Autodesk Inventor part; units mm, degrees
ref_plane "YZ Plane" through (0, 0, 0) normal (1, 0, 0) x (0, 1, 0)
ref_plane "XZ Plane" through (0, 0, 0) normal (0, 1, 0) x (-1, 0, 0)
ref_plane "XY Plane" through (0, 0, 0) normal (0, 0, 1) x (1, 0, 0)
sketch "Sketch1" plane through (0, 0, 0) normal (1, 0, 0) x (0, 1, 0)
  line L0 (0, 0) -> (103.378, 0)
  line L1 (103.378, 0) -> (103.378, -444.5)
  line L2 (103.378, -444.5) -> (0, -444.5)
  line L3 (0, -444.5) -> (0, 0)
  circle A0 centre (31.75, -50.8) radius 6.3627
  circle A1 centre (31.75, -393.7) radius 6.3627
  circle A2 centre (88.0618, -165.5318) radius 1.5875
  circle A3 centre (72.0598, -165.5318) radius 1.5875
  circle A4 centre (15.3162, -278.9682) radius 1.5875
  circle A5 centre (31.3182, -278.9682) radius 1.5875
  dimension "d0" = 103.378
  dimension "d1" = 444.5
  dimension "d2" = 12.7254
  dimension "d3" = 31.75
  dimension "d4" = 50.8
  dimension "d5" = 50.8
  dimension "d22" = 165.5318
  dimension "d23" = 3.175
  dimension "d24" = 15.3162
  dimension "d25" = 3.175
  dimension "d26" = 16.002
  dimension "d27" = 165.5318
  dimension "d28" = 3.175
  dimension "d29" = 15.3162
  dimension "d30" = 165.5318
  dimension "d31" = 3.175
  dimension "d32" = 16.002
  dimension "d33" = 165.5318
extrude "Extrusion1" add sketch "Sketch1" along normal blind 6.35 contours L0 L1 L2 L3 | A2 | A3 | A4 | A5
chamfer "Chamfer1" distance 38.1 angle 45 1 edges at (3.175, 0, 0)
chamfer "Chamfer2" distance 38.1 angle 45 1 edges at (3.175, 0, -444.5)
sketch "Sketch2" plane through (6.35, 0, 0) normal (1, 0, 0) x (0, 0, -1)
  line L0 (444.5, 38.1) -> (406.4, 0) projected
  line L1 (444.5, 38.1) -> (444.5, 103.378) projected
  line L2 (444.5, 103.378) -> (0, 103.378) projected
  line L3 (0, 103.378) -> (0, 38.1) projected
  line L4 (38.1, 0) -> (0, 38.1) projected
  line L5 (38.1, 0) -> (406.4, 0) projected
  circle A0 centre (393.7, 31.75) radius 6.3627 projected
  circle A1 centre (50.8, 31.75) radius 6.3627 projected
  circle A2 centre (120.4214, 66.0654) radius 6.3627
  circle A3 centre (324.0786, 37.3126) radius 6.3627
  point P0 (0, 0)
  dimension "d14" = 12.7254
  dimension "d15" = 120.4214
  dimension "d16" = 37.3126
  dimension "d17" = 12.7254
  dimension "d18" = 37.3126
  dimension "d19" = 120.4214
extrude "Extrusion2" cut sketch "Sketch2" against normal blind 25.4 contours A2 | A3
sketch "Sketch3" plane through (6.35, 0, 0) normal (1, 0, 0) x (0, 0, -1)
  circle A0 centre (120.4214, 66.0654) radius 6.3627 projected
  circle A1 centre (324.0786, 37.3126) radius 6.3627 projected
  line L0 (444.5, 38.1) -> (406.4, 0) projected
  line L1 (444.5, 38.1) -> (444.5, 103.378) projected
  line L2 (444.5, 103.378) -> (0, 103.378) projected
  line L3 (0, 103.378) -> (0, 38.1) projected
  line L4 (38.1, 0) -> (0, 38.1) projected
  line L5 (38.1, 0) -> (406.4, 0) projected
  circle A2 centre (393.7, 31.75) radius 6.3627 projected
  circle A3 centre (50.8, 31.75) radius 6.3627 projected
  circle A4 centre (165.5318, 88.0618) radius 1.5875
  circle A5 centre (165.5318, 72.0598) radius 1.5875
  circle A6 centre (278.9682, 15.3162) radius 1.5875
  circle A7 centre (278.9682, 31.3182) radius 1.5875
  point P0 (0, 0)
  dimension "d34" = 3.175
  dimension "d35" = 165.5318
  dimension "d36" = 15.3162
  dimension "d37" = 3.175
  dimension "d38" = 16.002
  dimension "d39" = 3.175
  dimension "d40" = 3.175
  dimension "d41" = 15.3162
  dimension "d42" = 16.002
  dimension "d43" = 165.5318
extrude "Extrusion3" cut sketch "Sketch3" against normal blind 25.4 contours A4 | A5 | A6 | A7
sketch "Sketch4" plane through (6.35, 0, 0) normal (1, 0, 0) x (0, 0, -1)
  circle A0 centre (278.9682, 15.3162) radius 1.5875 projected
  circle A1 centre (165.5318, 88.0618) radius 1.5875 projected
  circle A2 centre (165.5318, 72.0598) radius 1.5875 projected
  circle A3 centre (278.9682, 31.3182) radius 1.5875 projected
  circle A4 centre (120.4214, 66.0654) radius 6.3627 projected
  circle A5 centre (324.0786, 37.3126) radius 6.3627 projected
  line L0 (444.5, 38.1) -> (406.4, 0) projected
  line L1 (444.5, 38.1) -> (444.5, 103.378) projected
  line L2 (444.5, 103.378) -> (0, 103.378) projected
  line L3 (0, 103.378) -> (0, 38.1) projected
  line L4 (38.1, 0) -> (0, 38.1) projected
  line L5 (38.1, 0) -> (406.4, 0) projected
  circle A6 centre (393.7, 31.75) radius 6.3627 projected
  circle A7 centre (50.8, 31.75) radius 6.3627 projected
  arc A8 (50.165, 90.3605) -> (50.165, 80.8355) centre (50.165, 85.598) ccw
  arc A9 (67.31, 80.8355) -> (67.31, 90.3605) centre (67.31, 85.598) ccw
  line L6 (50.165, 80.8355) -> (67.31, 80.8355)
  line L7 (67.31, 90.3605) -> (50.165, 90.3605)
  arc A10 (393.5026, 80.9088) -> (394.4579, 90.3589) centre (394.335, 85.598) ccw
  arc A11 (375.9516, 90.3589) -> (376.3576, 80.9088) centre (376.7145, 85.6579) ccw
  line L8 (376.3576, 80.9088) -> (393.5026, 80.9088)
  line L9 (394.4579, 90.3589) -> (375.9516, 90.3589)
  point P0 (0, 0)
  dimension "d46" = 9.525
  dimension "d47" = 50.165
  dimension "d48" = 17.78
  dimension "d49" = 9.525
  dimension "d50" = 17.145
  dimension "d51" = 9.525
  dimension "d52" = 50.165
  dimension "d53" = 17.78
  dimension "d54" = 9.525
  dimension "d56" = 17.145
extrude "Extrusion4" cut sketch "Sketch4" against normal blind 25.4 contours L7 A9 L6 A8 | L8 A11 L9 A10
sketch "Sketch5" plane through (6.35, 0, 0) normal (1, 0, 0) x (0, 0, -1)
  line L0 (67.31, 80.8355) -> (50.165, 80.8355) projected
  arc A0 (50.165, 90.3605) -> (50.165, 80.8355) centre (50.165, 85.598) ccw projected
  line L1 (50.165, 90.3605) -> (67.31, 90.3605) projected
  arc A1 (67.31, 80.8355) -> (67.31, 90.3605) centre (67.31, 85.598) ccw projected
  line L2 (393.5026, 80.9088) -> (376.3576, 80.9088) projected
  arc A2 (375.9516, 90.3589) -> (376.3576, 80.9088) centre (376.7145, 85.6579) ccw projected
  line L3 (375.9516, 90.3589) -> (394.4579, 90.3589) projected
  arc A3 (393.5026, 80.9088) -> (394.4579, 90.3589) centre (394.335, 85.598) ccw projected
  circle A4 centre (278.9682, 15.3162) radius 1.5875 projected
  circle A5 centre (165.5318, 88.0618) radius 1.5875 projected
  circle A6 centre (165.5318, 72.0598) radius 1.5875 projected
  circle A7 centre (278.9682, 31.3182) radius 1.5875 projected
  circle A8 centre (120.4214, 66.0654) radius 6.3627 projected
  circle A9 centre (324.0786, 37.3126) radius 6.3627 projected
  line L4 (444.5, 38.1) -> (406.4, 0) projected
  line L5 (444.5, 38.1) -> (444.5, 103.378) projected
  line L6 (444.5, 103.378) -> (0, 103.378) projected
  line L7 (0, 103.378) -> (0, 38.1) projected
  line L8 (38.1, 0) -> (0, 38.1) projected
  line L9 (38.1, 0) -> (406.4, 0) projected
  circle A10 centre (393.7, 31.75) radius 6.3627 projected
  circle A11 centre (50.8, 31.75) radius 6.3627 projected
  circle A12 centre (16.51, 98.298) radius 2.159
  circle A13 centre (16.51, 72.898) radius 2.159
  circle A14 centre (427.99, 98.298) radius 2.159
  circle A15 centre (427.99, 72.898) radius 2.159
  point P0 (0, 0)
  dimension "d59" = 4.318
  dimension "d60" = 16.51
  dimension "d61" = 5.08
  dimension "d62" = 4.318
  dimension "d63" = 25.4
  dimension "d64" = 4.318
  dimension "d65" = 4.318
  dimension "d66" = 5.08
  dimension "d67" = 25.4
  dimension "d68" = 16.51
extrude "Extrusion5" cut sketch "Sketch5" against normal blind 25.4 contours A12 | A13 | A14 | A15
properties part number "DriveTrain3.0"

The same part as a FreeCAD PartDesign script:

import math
import FreeCAD as App
import Part
import Sketcher

V = App.Vector
Q = App.Units.Quantity


def edges_at(feature, points):
    """Names of the edges that pass closest to the given points."""
    edges = feature.Shape.Edges
    near = lambda p: min(range(len(edges)), key=lambda i: edges[i].distToShape(Part.Vertex(*p))[0])
    return sorted({f"Edge{near(p) + 1}" for p in points})


def add_polygon(sketch, points):
    """Adds a closed chain of lines whose ends are joined by coincident constraints."""
    first, n = sketch.GeometryCount, len(points)
    for a, b in zip(points, points[1:] + points[:1]):
        sketch.addGeometry(Part.LineSegment(App.Vector(*a, 0), App.Vector(*b, 0)), False)
    for i in range(n):
        sketch.addConstraint(Sketcher.Constraint("Coincident", first + i, 2, first + (i + 1) % n, 1))

doc = App.newDocument("Part")
body = doc.addObject("PartDesign::Body", "Body")

# Sketch on YZ plane
sketch1 = body.newObject("Sketcher::SketchObject", "Sketch")
sketch1.AttachmentSupport = (doc.getObject("YZ_Plane"), [""])
sketch1.MapMode = "FlatFace"
add_polygon(sketch1, [(103.378, 0), (0, 0), (0, -444.5), (103.378, -444.5)])  # lines 0-3
sketch1.addGeometry(Part.Circle(V(31.75, -393.7, 0), V(0, 0, 1), 6.3627), False)  # 4
sketch1.addGeometry(Part.Circle(V(31.75, -50.8, 0), V(0, 0, 1), 6.3627), False)  # 5
sketch1.addConstraint([
    Sketcher.Constraint("Horizontal", 0),
    Sketcher.Constraint("Vertical", 1),
    Sketcher.Constraint("Horizontal", 2),
    Sketcher.Constraint("Vertical", 3),
    Sketcher.Constraint("Coincident", 0, 2, -1, 1),
    Sketcher.Constraint("Equal", 4, 5),
    Sketcher.Constraint("Vertical", 4, 3, 5, 3),
    Sketcher.Constraint("Diameter", 4, Q("0.501 in")),
    Sketcher.Constraint("DistanceY", 1, 2, 1, 1, Q("17.5 in")),
    Sketcher.Constraint("DistanceY", 5, 3, -1, 1, Q("2 in")),
    Sketcher.Constraint("DistanceY", 1, 2, 4, 3, Q("2 in")),
    Sketcher.Constraint("DistanceX", 0, 2, 0, 1, Q("4.07 in")),
    Sketcher.Constraint("DistanceX", -1, 1, 4, 3, Q("1.25 in")),
])
pad1 = body.newObject("PartDesign::Pad", "Pad")
pad1.Profile = sketch1
pad1.Length = Q("0.25 in")
doc.recompute()

chamfer = body.newObject("PartDesign::Chamfer", "Chamfer")
chamfer.Base = (pad1, edges_at(pad1, [(3.175, 0, 0)]))
chamfer.Size = Q("1.5 in")
doc.recompute()

chamfer2 = body.newObject("PartDesign::Chamfer", "Chamfer001")
chamfer2.Base = (chamfer, edges_at(chamfer, [(3.175, 0, -444.5)]))
chamfer2.Size = Q("1.5 in")

# Sketch on YZ plane
sketch2 = body.newObject("Sketcher::SketchObject", "Sketch001")
sketch2.AttachmentSupport = (doc.getObject("YZ_Plane"), [""])
sketch2.MapMode = "FlatFace"
sketch2.AttachmentOffset = App.Placement(V(0, 0, 0.25 * 25.4), App.Rotation())
sketch2.addGeometry([
    Part.Circle(V(66.0654, -120.4214, 0), V(0, 0, 1), 6.3627),
    Part.Circle(V(37.3126, -324.0786, 0), V(0, 0, 1), 6.3627),
], False)
sketch2.addConstraint([
    Sketcher.Constraint("Equal", 0, 1),
    Sketcher.Constraint("Diameter", 0, Q("0.501 in")),
    Sketcher.Constraint("DistanceY", 0, 3, -1, 1, Q("4.741 in")),
    Sketcher.Constraint("DistanceX", -1, 1, 1, 3, Q("1.469 in")),
    Sketcher.Constraint("DistanceX", -1, 1, 0, 3, Q("2.601 in")),
    Sketcher.Constraint("DistanceY", 1, 3, -1, 1, Q("12.759 in")),
])
pocket1 = body.newObject("PartDesign::Pocket", "Pocket")
pocket1.Profile = sketch2
pocket1.Length = Q("1 in")

# Sketch on YZ plane
sketch3 = body.newObject("Sketcher::SketchObject", "Sketch002")
sketch3.AttachmentSupport = (doc.getObject("YZ_Plane"), [""])
sketch3.MapMode = "FlatFace"
sketch3.AttachmentOffset = App.Placement(V(0, 0, 0.25 * 25.4), App.Rotation())
sketch3.addGeometry([
    Part.Circle(V(88.0618, -165.5318, 0), V(0, 0, 1), 1.5875),
    Part.Circle(V(72.0598, -165.5318, 0), V(0, 0, 1), 1.5875),
    Part.Circle(V(15.3162, -278.9682, 0), V(0, 0, 1), 1.5875),
    Part.Circle(V(31.3182, -278.9682, 0), V(0, 0, 1), 1.5875),
], False)
sketch3.addConstraint([
    Sketcher.Constraint("Equal", 0, 1),
    Sketcher.Constraint("Equal", 1, 2),
    Sketcher.Constraint("Equal", 2, 3),
    Sketcher.Constraint("Horizontal", 0, 3, 1, 3),
    Sketcher.Constraint("Horizontal", 2, 3, 3, 3),
    Sketcher.Constraint("Diameter", 0, Q("0.125 in")),
    Sketcher.Constraint("DistanceX", 1, 3, 0, 3, Q("0.63 in")),
    Sketcher.Constraint("DistanceX", 2, 3, 3, 3, Q("0.63 in")),
    Sketcher.Constraint("DistanceY", 0, 3, -1, 1, Q("6.517 in")),
    Sketcher.Constraint("DistanceX", -1, 1, 2, 3, Q("0.603 in")),
    Sketcher.Constraint("DistanceX", -1, 1, 0, 3, Q("3.467 in")),
    Sketcher.Constraint("DistanceY", 2, 3, -1, 1, Q("10.983 in")),
])
pocket2 = body.newObject("PartDesign::Pocket", "Pocket001")
pocket2.Profile = sketch3
pocket2.Length = Q("1 in")

# Sketch on YZ plane
sketch4 = body.newObject("Sketcher::SketchObject", "Sketch003")
sketch4.AttachmentSupport = (doc.getObject("YZ_Plane"), [""])
sketch4.MapMode = "FlatFace"
sketch4.AttachmentOffset = App.Placement(V(0, 0, 0.25 * 25.4), App.Rotation())
sketch4.addGeometry([
    Part.LineSegment(V(90.3605, -67.31, 0), V(90.3605, -50.165, 0)),  # 0
    Part.ArcOfCircle(Part.Circle(V(85.598, -50.165, 0), V(0, 0, 1), 4.7625), math.radians(0), math.radians(180)),  # 1
    Part.LineSegment(V(80.8355, -50.165, 0), V(80.8355, -67.31, 0)),  # 2
    Part.ArcOfCircle(Part.Circle(V(85.598, -67.31, 0), V(0, 0, 1), 4.7625), math.radians(180), math.radians(360)),  # 3
    Part.LineSegment(V(80.9088, -376.3576, 0), V(80.9088, -393.5026, 0)),  # 4
    Part.ArcOfCircle(Part.Circle(V(85.598, -394.335, 0), V(0, 0, 1), 4.762508), math.radians(169.934037), math.radians(358.52127)),  # 5
    Part.LineSegment(V(90.3589, -394.4579, 0), V(90.3589, -375.9516, 0)),  # 6
    Part.ArcOfCircle(Part.Circle(V(85.6579, -376.7145, 0), V(0, 0, 1), 4.762501), math.radians(9.217863), math.radians(175.702239)),  # 7
], False)
sketch4.addConstraint([
    Sketcher.Constraint("Tangent", 0, 2, 1, 1),
    Sketcher.Constraint("Tangent", 1, 2, 2, 1),
    Sketcher.Constraint("Tangent", 2, 2, 3, 1),
    Sketcher.Constraint("Tangent", 3, 2, 0, 1),
    Sketcher.Constraint("Coincident", 4, 2, 5, 1),
    Sketcher.Constraint("Coincident", 5, 2, 6, 1),
    Sketcher.Constraint("Coincident", 6, 2, 7, 1),
    Sketcher.Constraint("Coincident", 7, 2, 4, 1),
    Sketcher.Constraint("Vertical", 0),
    Sketcher.Constraint("Vertical", 2),
    Sketcher.Constraint("Vertical", 4),
    Sketcher.Constraint("Vertical", 6),
    Sketcher.Constraint("Equal", 3, 5),
    Sketcher.Constraint("Equal", 5, 7),
    Sketcher.Constraint("Vertical", 3, 3, 5, 3),
    Sketcher.Constraint("Equal", 2, 4),
    Sketcher.Constraint("Radius", 1, Q("0.1875 in")),
    Sketcher.Constraint("DistanceY", 0, 1, 0, 2, Q("0.675 in")),
    Sketcher.Constraint("DistanceY", 1, 3, -1, 1, Q("1.975 in")),
    Sketcher.Constraint("DistanceX", -1, 1, 1, 3, Q("3.37 in")),
    Sketcher.Constraint("DistanceY", 5, 3, 1, 3, Q("13.55 in")),
    Sketcher.Constraint("DistanceY", 6, 1, 6, 2, Q("0.7286 in")),
    Sketcher.Constraint("DistanceY", 5, 2, 4, 2, Q("0.0376 in")),
    Sketcher.Constraint("DistanceX", -1, 1, 7, 3, 85.658),
])
pocket3 = body.newObject("PartDesign::Pocket", "Pocket002")
pocket3.Profile = sketch4
pocket3.Length = Q("1 in")

# Sketch on YZ plane
sketch5 = body.newObject("Sketcher::SketchObject", "Sketch004")
sketch5.AttachmentSupport = (doc.getObject("YZ_Plane"), [""])
sketch5.MapMode = "FlatFace"
sketch5.AttachmentOffset = App.Placement(V(0, 0, 0.25 * 25.4), App.Rotation())
sketch5.addGeometry([
    Part.Circle(V(98.298, -16.51, 0), V(0, 0, 1), 2.159),
    Part.Circle(V(72.898, -16.51, 0), V(0, 0, 1), 2.159),
    Part.Circle(V(98.298, -427.99, 0), V(0, 0, 1), 2.159),
    Part.Circle(V(72.898, -427.99, 0), V(0, 0, 1), 2.159),
], False)
sketch5.addConstraint([
    Sketcher.Constraint("Equal", 0, 1),
    Sketcher.Constraint("Equal", 1, 2),
    Sketcher.Constraint("Equal", 2, 3),
    Sketcher.Constraint("Horizontal", 0, 3, 1, 3),
    Sketcher.Constraint("Horizontal", 2, 3, 3, 3),
    Sketcher.Constraint("Vertical", 0, 3, 2, 3),
    Sketcher.Constraint("Vertical", 1, 3, 3, 3),
    Sketcher.Constraint("Diameter", 0, Q("0.17 in")),
    Sketcher.Constraint("DistanceX", 1, 3, 0, 3, Q("1 in")),
    Sketcher.Constraint("DistanceY", 0, 3, -1, 1, Q("0.65 in")),
    Sketcher.Constraint("DistanceY", 2, 3, 0, 3, Q("16.2 in")),
    Sketcher.Constraint("DistanceX", -1, 1, 0, 3, Q("3.87 in")),
])
pocket4 = body.newObject("PartDesign::Pocket", "Pocket003")
pocket4.Profile = sketch5
pocket4.Length = Q("1 in")

doc.recompute()
